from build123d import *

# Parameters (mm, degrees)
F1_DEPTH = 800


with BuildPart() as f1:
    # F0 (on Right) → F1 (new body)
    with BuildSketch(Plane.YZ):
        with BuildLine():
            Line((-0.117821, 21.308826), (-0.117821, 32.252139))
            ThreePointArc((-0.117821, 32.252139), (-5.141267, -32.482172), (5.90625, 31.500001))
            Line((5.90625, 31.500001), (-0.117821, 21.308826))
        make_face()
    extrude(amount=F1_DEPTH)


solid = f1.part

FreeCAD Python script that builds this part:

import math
import FreeCAD as App
import Part
import Sketcher

doc = App.newDocument("Part")
body = doc.addObject("PartDesign::Body", "Body")

# Sketch on YZ plane
sketch1 = doc.addObject("Sketcher::SketchObject", "Sketch")
body.addObject(sketch1)
sketch1.AttachmentSupport = (doc.YZ_Plane, [""])
sketch1.MapMode = "FlatFace"
sketch1.addGeometry([
    Part.LineSegment(App.Vector(-0.117821, 21.308826, 0), App.Vector(-0.117821, 32.252139, 0)),
    Part.ArcOfCircle(Part.Circle(App.Vector(-1.114723, -0.232568, 0), App.Vector(0, 0, 1), 32.5), math.radians(88.242238), math.radians(437.524041)),
    Part.LineSegment(App.Vector(5.90625, 31.500001, 0), App.Vector(-0.117821, 21.308826, 0)),
], False)
sketch1.addConstraint([
    Sketcher.Constraint("Coincident", 0, 2, 1, 1),
    Sketcher.Constraint("Coincident", 1, 2, 2, 1),
    Sketcher.Constraint("Coincident", 2, 2, 0, 1),
    Sketcher.Constraint("Vertical", 0),
    Sketcher.Constraint("Radius", 1, 32.5),
    Sketcher.Constraint("DistanceY", -1, 1, 1, 2, 31.500001),
    Sketcher.Constraint("DistanceY", 0, 1, 0, 2, 10.943313),
    Sketcher.Constraint("DistanceY", 1, 3, -1, 1, 0.232568),
    Sketcher.Constraint("DistanceX", 0, 2, -1, 1, 0.117821),
    Sketcher.Constraint("DistanceY", -1, 1, 0, 2, 32.252139),
])
pad1 = doc.addObject("PartDesign::Pad", "Pad")
body.addObject(pad1)
pad1.Profile = sketch1
pad1.Length = 800

doc.recompute()
